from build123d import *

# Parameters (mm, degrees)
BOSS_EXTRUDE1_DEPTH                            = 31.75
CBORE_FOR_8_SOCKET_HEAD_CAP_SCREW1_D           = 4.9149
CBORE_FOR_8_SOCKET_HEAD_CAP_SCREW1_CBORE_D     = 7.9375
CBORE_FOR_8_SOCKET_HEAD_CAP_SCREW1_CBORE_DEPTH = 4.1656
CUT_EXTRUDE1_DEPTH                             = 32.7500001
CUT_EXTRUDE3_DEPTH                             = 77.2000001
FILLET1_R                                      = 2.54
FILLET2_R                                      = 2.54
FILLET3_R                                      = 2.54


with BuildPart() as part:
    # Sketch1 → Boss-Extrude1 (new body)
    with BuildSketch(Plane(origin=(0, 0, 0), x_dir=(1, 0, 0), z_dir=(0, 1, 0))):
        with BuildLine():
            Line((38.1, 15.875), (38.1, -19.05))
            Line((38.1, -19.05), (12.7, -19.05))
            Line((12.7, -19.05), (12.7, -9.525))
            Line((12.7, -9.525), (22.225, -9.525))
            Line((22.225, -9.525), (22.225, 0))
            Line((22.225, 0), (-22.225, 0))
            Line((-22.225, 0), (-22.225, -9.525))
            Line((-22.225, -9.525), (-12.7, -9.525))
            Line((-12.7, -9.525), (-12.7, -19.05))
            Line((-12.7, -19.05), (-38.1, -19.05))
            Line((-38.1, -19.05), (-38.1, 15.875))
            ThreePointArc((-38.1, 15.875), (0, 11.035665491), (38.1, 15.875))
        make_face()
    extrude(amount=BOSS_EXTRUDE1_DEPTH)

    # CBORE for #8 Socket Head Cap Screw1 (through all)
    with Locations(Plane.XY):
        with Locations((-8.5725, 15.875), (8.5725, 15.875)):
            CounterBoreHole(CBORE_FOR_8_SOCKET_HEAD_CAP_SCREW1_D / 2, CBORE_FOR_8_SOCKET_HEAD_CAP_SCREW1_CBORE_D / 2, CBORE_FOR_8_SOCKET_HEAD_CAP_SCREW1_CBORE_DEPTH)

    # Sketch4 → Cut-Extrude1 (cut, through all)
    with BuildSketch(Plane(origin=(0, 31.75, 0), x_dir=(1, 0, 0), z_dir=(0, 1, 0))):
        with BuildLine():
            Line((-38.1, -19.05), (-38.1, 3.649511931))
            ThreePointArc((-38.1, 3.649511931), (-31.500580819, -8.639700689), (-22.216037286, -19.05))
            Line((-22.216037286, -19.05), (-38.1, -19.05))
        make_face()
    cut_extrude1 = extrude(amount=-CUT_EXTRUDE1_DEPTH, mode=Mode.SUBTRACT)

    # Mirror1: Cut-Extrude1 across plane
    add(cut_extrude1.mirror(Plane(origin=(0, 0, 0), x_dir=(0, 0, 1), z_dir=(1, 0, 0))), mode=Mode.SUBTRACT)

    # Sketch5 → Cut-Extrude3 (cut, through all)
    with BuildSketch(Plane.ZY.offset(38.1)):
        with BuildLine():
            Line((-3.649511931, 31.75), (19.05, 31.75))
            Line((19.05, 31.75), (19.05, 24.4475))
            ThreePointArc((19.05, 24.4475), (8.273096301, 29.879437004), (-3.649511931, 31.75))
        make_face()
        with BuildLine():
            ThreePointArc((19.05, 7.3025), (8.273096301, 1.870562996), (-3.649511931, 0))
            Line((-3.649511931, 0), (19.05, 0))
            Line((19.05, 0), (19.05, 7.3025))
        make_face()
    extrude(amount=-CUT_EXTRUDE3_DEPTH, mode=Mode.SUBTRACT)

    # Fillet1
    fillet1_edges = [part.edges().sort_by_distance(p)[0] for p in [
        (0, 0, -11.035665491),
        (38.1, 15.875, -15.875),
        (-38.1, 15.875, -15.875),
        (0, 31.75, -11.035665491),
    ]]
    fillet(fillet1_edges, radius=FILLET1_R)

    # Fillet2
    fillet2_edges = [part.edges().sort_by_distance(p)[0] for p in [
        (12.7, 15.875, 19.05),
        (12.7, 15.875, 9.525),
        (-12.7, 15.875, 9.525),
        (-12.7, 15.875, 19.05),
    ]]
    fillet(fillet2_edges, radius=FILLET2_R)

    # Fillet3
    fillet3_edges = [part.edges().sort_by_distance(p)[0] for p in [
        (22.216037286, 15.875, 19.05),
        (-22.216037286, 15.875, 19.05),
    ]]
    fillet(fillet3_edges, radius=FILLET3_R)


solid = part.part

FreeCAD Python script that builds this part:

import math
import FreeCAD as App
import Part
import Sketcher
Q = App.Units.Quantity


def edges_at(feature, points):
    """Names of the edges that pass closest to the given points."""
    edges = feature.Shape.Edges
    near = lambda p: min(range(len(edges)), key=lambda i: edges[i].distToShape(Part.Vertex(*p))[0])
    return sorted({f"Edge{near(p) + 1}" for p in points})

doc = App.newDocument("Part")
params = doc.addObject("Spreadsheet::Sheet", "Params")
for row, (alias, value) in enumerate([
    ("sketch1_radius", "6 in"),
    ("sketch1_width", "1 in"),
    ("sketch1_width2", "1.75 in"),
    ("pad1_length", "1.25 in"),
    ("hole_diameter", "0.1935 in"),
    ("hole_cbore_diameter", "0.3125 in"),
    ("hole_cbore_depth", "0.164 in"),
    ("fillet_radius", "0.1 in"),
    ("fillet2_radius", "0.1 in"),
    ("fillet3_radius", "0.1 in"),
], start=1):
    params.set(f"A{row}", alias)
    params.set(f"B{row}", "=" + value)
    params.setAlias(f"B{row}", alias)

body = doc.addObject("PartDesign::Body", "Body")

# Sketch on XZ plane
sketch1 = body.newObject("Sketcher::SketchObject", "Sketch")
sketch1.AttachmentSupport = (doc.getObject("XZ_Plane"), [""])
sketch1.MapMode = "FlatFace"
sketch1.addGeometry(Part.LineSegment(App.Vector(38, 19, 0), App.Vector(38, -16, 0)), False)
sketch1.addGeometry(Part.ArcOfCircle(Part.Circle(App.Vector(0, -163, 0), App.Vector(0, 0, 1), 152), math.radians(76), math.radians(104)), False)
sketch1.addGeometry(Part.LineSegment(App.Vector(-38, -16, 0), App.Vector(-38, 19, 0)), False)
sketch1.addGeometry(Part.LineSegment(App.Vector(-38, 19, 0), App.Vector(-13, 19, 0)), False)
sketch1.addGeometry(Part.LineSegment(App.Vector(-13, 19, 0), App.Vector(-13, 10, 0)), False)
sketch1.addGeometry(Part.LineSegment(App.Vector(-13, 10, 0), App.Vector(-22, 10, 0)), False)
sketch1.addGeometry(Part.LineSegment(App.Vector(-22, 10, 0), App.Vector(-22, 0, 0)), False)
sketch1.addGeometry(Part.LineSegment(App.Vector(-22, 0, 0), App.Vector(22, 0, 0)), False)
sketch1.addGeometry(Part.LineSegment(App.Vector(22, 0, 0), App.Vector(22, 10, 0)), False)
sketch1.addGeometry(Part.LineSegment(App.Vector(22, 10, 0), App.Vector(13, 10, 0)), False)
sketch1.addGeometry(Part.LineSegment(App.Vector(13, 10, 0), App.Vector(13, 19, 0)), False)
sketch1.addGeometry(Part.LineSegment(App.Vector(13, 19, 0), App.Vector(38, 19, 0)), False)
sketch1.addConstraint(Sketcher.Constraint("Coincident", 0, 2, 1, 1))
sketch1.addConstraint(Sketcher.Constraint("Coincident", 1, 2, 2, 1))
sketch1.addConstraint(Sketcher.Constraint("Coincident", 2, 2, 3, 1))
sketch1.addConstraint(Sketcher.Constraint("Coincident", 3, 2, 4, 1))
sketch1.addConstraint(Sketcher.Constraint("Coincident", 4, 2, 5, 1))
sketch1.addConstraint(Sketcher.Constraint("Coincident", 5, 2, 6, 1))
sketch1.addConstraint(Sketcher.Constraint("Coincident", 6, 2, 7, 1))
sketch1.addConstraint(Sketcher.Constraint("Coincident", 7, 2, 8, 1))
sketch1.addConstraint(Sketcher.Constraint("Coincident", 8, 2, 9, 1))
sketch1.addConstraint(Sketcher.Constraint("Coincident", 9, 2, 10, 1))
sketch1.addConstraint(Sketcher.Constraint("Coincident", 10, 2, 11, 1))
sketch1.addConstraint(Sketcher.Constraint("Coincident", 11, 2, 0, 1))
sketch1.addConstraint(Sketcher.Constraint("Vertical", 0))
sketch1.addConstraint(Sketcher.Constraint("Vertical", 2))
sketch1.addConstraint(Sketcher.Constraint("Horizontal", 3))
sketch1.addConstraint(Sketcher.Constraint("Vertical", 4))
sketch1.addConstraint(Sketcher.Constraint("Horizontal", 5))
sketch1.addConstraint(Sketcher.Constraint("Vertical", 6))
sketch1.addConstraint(Sketcher.Constraint("Horizontal", 7))
sketch1.addConstraint(Sketcher.Constraint("Vertical", 8))
sketch1.addConstraint(Sketcher.Constraint("Horizontal", 9))
sketch1.addConstraint(Sketcher.Constraint("Vertical", 10))
sketch1.addConstraint(Sketcher.Constraint("Horizontal", 11))
sketch1.addConstraint(Sketcher.Constraint("Symmetric", 6, 2, 7, 2, -1, 1))
sketch1.addConstraint(Sketcher.Constraint("Symmetric", 0, 2, 1, 2, -2))
sketch1.addConstraint(Sketcher.Constraint("Symmetric", 4, 2, 9, 2, -2))
sketch1.addConstraint(Sketcher.Constraint("Horizontal", 3, 2, 10, 2))
sketch1.addConstraint(Sketcher.Constraint("Equal", 9, 4))
sketch1.addConstraint(Sketcher.Constraint("Equal", 4, 6))
sketch1.addConstraint(Sketcher.Constraint("Radius", 1, Q("6 in")))
sketch1.addConstraint(Sketcher.Constraint("DistanceX", 3, 1, 3, 2, Q("1 in")))
sketch1.addConstraint(Sketcher.Constraint("DistanceX", 1, 2, 0, 2, Q("3 in")))
sketch1.addConstraint(Sketcher.Constraint("DistanceY", 1, 2, 4, 2, Q("1 in")))
sketch1.addConstraint(Sketcher.Constraint("DistanceX", 7, 1, 7, 2, Q("1.75 in")))
sketch1.setExpression("Constraints[29]", "Params.sketch1_radius")
sketch1.setExpression("Constraints[30]", "Params.sketch1_width")
sketch1.setExpression("Constraints[33]", "Params.sketch1_width2")
pad1 = body.newObject("PartDesign::Pad", "Pad")
pad1.Profile = sketch1
pad1.setExpression("Length", "Params.pad1_length")
pad1.Reversed = True

# Sketch on XY plane
sketch2 = body.newObject("Sketcher::SketchObject", "Sketch001")
sketch2.AttachmentSupport = (doc.getObject("XY_Plane"), [""])
sketch2.MapMode = "FlatFace"
sketch2.addGeometry(Part.Circle(App.Vector(-8.6, 15.9, 0), App.Vector(0, 0, 1), 2.5), False)
sketch2.addGeometry(Part.Circle(App.Vector(8.6, 15.9, 0), App.Vector(0, 0, 1), 2.5), False)
sketch2.addConstraint(Sketcher.Constraint("Equal", 0, 1))
sketch2.addConstraint(Sketcher.Constraint("Symmetric", 0, 3, 1, 3, -2))
sketch2.addConstraint(Sketcher.Constraint("Diameter", 0, Q("0.1935 in")))
sketch2.addConstraint(Sketcher.Constraint("DistanceY", -1, 1, 0, 3, Q("0.625 in")))
sketch2.addConstraint(Sketcher.Constraint("DistanceX", 0, 3, 1, 3, Q("0.675 in")))
doc.recompute()
hole = body.newObject("PartDesign::Hole", "Hole")
hole.Profile = sketch2
hole.ThreadType = "None"
hole.setExpression("Diameter", "Params.hole_diameter")
hole.DepthType = "ThroughAll"
hole.HoleCutType = "Counterbore"
hole.setExpression("HoleCutDiameter", "Params.hole_cbore_diameter")
hole.setExpression("HoleCutDepth", "Params.hole_cbore_depth")

# Sketch on XZ plane
sketch3 = body.newObject("Sketcher::SketchObject", "Sketch002")
sketch3.AttachmentSupport = (doc.getObject("XZ_Plane"), [""])
sketch3.MapMode = "FlatFace"
sketch3.AttachmentOffset = App.Placement(App.Vector(0, 0, -1.25 * 25.4), App.Rotation())
sketch3.addGeometry(Part.LineSegment(App.Vector(-38, -4, 0), App.Vector(-38, 19, 0)), False)
sketch3.addGeometry(Part.LineSegment(App.Vector(-38, 19, 0), App.Vector(-22, 19, 0)), False)
sketch3.addGeometry(Part.ArcOfCircle(Part.Circle(App.Vector(17, -25, 0), App.Vector(0, 0, 1), 59), math.radians(132), math.radians(159)), False)
sketch3.addConstraint(Sketcher.Constraint("Coincident", 0, 2, 1, 1))
sketch3.addConstraint(Sketcher.Constraint("Coincident", 1, 2, 2, 1))
sketch3.addConstraint(Sketcher.Constraint("Coincident", 2, 2, 0, 1))
sketch3.addConstraint(Sketcher.Constraint("Vertical", 0))
sketch3.addConstraint(Sketcher.Constraint("Horizontal", 1))
sketch3.addConstraint(Sketcher.Constraint("DistanceY", 2, 3, -1, 1, Q("1 in")))
sketch3.addConstraint(Sketcher.Constraint("DistanceX", 0, 2, -1, 1, Q("1.5 in")))
sketch3.addConstraint(Sketcher.Constraint("Radius", 2, Q("2.3375 in")))
sketch3.addConstraint(Sketcher.Constraint("DistanceY", -1, 1, 0, 2, Q("0.75 in")))
sketch3.addConstraint(Sketcher.Constraint("DistanceX", -1, 1, 2, 3, Q("0.675 in")))
pocket1 = body.newObject("PartDesign::Pocket", "Pocket")
pocket1.Profile = sketch3
pocket1.Type = "ThroughAll"
pocket1.Reversed = True
doc.recompute()

mirrored = body.newObject("PartDesign::Mirrored", "Mirrored")
mirrored.Originals = [pocket1]
mirrored.MirrorPlane = (doc.getObject("YZ_Plane"), [""])
body.Tip = mirrored

# Sketch on YZ plane
sketch4 = body.newObject("Sketcher::SketchObject", "Sketch003")
sketch4.AttachmentSupport = (doc.getObject("YZ_Plane"), [""])
sketch4.MapMode = "FlatFace"
sketch4.AttachmentOffset = App.Placement(App.Vector(0, 0, -1.5 * 25.4), App.Rotation())
sketch4.addGeometry(Part.LineSegment(App.Vector(32, 19, 0), App.Vector(32, -4, 0)), False)
sketch4.addGeometry(Part.ArcOfCircle(Part.Circle(App.Vector(-7, -4, 0), App.Vector(0, 0, 1), 39), math.radians(0), math.radians(36)), False)
sketch4.addGeometry(Part.LineSegment(App.Vector(24, 19, 0), App.Vector(32, 19, 0)), False)
sketch4.addGeometry(Part.ArcOfCircle(Part.Circle(App.Vector(39, -4, 0), App.Vector(0, 0, 1), 39), math.radians(144), math.radians(180)), False)
sketch4.addGeometry(Part.LineSegment(App.Vector(0, -4, 0), App.Vector(0, 19, 0)), False)
sketch4.addGeometry(Part.LineSegment(App.Vector(0, 19, 0), App.Vector(7, 19, 0)), False)
sketch4.addConstraint(Sketcher.Constraint("Tangent", 0, 2, 1, 1))
sketch4.addConstraint(Sketcher.Constraint("Coincident", 1, 2, 2, 1))
sketch4.addConstraint(Sketcher.Constraint("Coincident", 2, 2, 0, 1))
sketch4.addConstraint(Sketcher.Constraint("Tangent", 3, 2, 4, 1))
sketch4.addConstraint(Sketcher.Constraint("Coincident", 4, 2, 5, 1))
sketch4.addConstraint(Sketcher.Constraint("Coincident", 5, 2, 3, 1))
sketch4.addConstraint(Sketcher.Constraint("Vertical", 0))
sketch4.addConstraint(Sketcher.Constraint("Horizontal", 2))
sketch4.addConstraint(Sketcher.Constraint("Vertical", 4))
sketch4.addConstraint(Sketcher.Constraint("Horizontal", 5))
sketch4.addConstraint(Sketcher.Constraint("Equal", 1, 3))
sketch4.addConstraint(Sketcher.Constraint("PointOnObject", 3, 2, -2))
sketch4.addConstraint(Sketcher.Constraint("Horizontal", 1, 3, 3, 3))
sketch4.addConstraint(Sketcher.Constraint("Horizontal", 2, 2, 4, 2))
sketch4.addConstraint(Sketcher.Constraint("DistanceX", -1, 1, 0, 2, Q("1.25 in")))
sketch4.addConstraint(Sketcher.Constraint("DistanceY", -1, 1, 1, 2, Q("0.75 in")))
sketch4.addConstraint(Sketcher.Constraint("DistanceX", 2, 1, 2, 2, Q("0.2875 in")))
sketch4.addConstraint(Sketcher.Constraint("Radius", 1, Q("38.931486 mm")))
pocket2 = body.newObject("PartDesign::Pocket", "Pocket001")
pocket2.Profile = sketch4
pocket2.Type = "ThroughAll"
pocket2.Reversed = True
doc.recompute()

fillet = body.newObject("PartDesign::Fillet", "Fillet")
fillet.Base = (pocket2, edges_at(pocket2, [
    (0, 0, -11.036),
    (38.1, 15.875, -15.875),
    (-38.1, 15.875, -15.875),
    (0, 31.75, -11.036),
]))
fillet.setExpression("Radius", "Params.fillet_radius")
doc.recompute()

fillet2 = body.newObject("PartDesign::Fillet", "Fillet001")
fillet2.Base = (fillet, edges_at(fillet, [
    (12.7, 15.875, 19.05),
    (12.7, 15.875, 9.525),
    (-12.7, 15.875, 9.525),
    (-12.7, 15.875, 19.05),
]))
fillet2.setExpression("Radius", "Params.fillet2_radius")
doc.recompute()

fillet3 = body.newObject("PartDesign::Fillet", "Fillet002")
fillet3.Base = (fillet2, edges_at(fillet2, [(22.216, 15.875, 19.05), (-22.216, 15.875, 19.05)]))
fillet3.setExpression("Radius", "Params.fillet3_radius")

doc.recompute()
